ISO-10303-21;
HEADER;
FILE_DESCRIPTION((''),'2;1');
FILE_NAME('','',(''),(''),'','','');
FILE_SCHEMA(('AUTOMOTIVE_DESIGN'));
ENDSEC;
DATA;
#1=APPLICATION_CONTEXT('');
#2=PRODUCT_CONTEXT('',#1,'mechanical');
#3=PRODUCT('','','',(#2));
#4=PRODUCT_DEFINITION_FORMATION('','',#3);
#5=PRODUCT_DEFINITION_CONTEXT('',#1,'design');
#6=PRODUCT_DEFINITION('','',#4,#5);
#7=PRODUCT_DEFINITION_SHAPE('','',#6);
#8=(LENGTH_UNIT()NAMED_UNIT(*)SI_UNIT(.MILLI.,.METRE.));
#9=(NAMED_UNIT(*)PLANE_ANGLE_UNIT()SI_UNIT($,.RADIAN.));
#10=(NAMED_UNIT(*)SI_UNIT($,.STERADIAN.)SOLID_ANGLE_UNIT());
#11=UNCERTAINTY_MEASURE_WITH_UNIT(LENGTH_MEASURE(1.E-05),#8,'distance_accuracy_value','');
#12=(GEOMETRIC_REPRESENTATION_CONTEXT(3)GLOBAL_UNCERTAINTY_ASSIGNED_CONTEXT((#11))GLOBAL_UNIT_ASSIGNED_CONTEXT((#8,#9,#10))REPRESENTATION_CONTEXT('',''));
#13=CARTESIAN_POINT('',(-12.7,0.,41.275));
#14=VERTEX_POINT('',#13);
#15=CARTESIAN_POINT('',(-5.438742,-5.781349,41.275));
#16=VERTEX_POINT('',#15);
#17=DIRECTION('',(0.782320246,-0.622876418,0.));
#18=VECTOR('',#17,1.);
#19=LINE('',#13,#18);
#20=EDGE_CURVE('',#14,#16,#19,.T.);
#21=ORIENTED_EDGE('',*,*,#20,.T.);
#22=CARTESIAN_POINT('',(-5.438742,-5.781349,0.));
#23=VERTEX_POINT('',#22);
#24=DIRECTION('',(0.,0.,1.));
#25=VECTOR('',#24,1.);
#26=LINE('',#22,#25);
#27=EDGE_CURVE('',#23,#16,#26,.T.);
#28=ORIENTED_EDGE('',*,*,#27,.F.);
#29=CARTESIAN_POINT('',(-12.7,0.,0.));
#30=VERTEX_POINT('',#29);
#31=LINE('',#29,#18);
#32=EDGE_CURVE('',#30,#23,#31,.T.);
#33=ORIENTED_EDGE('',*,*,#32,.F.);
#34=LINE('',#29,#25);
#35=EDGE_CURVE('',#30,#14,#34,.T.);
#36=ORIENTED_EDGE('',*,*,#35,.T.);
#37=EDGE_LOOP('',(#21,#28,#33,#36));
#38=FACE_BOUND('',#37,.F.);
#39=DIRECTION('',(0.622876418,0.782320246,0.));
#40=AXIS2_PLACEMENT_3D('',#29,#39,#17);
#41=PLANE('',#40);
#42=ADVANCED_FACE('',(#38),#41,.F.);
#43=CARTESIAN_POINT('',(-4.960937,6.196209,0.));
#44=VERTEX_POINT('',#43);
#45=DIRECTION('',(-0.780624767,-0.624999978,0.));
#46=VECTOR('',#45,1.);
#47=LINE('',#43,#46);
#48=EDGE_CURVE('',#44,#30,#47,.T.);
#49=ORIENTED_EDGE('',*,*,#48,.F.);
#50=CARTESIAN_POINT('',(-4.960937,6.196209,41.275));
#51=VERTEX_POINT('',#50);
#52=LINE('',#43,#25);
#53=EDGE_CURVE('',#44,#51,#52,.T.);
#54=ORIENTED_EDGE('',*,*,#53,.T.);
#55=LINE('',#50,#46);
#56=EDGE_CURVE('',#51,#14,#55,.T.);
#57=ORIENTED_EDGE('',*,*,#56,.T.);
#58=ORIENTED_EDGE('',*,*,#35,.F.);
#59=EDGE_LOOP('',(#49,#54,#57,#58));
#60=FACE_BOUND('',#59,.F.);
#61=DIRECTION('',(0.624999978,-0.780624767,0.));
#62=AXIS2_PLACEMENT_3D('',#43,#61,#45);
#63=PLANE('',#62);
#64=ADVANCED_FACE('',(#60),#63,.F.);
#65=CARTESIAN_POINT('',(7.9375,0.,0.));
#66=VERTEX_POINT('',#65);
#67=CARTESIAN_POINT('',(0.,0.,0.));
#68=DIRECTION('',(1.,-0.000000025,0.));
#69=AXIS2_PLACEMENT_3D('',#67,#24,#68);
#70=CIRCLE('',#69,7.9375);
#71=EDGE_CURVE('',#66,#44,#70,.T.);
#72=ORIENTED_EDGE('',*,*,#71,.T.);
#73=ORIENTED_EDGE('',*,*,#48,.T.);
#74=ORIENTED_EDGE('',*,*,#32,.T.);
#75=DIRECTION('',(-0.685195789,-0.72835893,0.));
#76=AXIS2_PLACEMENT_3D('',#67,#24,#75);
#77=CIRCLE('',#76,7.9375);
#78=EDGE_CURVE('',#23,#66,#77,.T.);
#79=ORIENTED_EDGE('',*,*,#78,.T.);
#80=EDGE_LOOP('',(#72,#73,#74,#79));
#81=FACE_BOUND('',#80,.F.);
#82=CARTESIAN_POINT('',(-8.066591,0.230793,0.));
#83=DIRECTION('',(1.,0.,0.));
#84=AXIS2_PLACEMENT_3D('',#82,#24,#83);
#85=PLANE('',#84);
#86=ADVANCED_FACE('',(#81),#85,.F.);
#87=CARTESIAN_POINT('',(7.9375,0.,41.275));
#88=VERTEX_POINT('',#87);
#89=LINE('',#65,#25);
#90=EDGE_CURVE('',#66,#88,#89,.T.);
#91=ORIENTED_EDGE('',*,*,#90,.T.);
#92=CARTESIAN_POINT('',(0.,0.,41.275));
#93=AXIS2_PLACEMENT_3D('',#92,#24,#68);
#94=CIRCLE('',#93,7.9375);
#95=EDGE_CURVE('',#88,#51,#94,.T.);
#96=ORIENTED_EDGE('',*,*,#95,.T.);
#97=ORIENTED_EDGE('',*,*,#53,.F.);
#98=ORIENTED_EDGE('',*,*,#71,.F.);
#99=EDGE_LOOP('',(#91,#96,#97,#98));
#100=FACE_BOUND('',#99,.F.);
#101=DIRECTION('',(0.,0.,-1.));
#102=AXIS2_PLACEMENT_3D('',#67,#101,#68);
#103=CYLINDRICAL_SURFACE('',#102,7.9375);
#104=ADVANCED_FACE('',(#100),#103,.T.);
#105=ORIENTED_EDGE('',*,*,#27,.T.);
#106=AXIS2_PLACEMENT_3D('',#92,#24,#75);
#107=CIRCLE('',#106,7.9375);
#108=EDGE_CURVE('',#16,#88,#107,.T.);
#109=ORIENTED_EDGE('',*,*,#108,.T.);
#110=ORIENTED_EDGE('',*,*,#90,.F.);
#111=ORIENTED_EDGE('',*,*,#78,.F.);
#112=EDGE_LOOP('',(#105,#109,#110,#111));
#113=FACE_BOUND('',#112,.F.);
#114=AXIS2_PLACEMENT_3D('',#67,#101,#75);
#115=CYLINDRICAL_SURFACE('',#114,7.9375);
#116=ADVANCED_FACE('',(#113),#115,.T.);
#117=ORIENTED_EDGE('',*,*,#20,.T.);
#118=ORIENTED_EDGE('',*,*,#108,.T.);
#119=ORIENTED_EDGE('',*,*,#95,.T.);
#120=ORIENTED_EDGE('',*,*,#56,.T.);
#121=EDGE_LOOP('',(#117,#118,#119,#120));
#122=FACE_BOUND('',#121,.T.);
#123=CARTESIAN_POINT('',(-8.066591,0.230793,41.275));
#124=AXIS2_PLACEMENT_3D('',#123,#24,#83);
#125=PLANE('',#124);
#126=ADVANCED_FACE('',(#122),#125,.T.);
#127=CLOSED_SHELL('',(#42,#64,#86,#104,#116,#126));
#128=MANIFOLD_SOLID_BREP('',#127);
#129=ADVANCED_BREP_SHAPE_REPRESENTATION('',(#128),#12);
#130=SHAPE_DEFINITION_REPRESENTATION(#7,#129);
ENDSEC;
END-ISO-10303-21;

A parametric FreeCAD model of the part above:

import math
import FreeCAD as App
import Part
import Sketcher
from FreeCAD import Vector
Q = App.Units.Quantity

doc = App.newDocument("Part")
body = doc.addObject("PartDesign::Body", "Body")

# Sketch on XY plane
sketch1 = doc.addObject("Sketcher::SketchObject", "Sketch")
body.addObject(sketch1)
sketch1.AttachmentSupport = (doc.XY_Plane, [""])
sketch1.MapMode = "FlatFace"
sketch1.addGeometry([
    Part.LineSegment(Vector(-4.960937, 6.196209, 0), Vector(-12.7, 0, 0)),
    Part.LineSegment(Vector(-12.7, 0, 0), Vector(-5.438742, -5.781349, 0)),
    Part.ArcOfCircle(Part.Circle(Vector(0, 0, 0), Vector(0, 0, 1), 7.9375), math.radians(-133.251007), math.radians(-0.000001)),
    Part.ArcOfCircle(Part.Circle(Vector(0, 0, 0), Vector(0, 0, 1), 7.9375), math.radians(-0.000001), math.radians(128.682187)),
], False)
sketch1.addConstraint([
    Sketcher.Constraint("Coincident", 0, 2, 1, 1),
    Sketcher.Constraint("Coincident", 1, 2, 2, 1),
    Sketcher.Constraint("Tangent", 2, 2, 3, 1),
    Sketcher.Constraint("Tangent", 3, 2, 0, 1),
    Sketcher.Constraint("Coincident", 2, 3, -1, 1),
    Sketcher.Constraint("Equal", 2, 3),
    Sketcher.Constraint("PointOnObject", 0, 2, -1),
    Sketcher.Constraint("PointOnObject", 2, 2, -1),
    Sketcher.Constraint("Radius", 2, Q("0.3125 in")),
    Sketcher.Constraint("DistanceX", 0, 2, -1, 1, Q("0.5 in")),
    Sketcher.Constraint("DistanceY", 1, 2, -1, 1, Q("5.781349 mm")),
])
pad1 = doc.addObject("PartDesign::Pad", "Pad")
body.addObject(pad1)
pad1.Profile = sketch1
pad1.Length = Q("1.625 in")

doc.recompute()
